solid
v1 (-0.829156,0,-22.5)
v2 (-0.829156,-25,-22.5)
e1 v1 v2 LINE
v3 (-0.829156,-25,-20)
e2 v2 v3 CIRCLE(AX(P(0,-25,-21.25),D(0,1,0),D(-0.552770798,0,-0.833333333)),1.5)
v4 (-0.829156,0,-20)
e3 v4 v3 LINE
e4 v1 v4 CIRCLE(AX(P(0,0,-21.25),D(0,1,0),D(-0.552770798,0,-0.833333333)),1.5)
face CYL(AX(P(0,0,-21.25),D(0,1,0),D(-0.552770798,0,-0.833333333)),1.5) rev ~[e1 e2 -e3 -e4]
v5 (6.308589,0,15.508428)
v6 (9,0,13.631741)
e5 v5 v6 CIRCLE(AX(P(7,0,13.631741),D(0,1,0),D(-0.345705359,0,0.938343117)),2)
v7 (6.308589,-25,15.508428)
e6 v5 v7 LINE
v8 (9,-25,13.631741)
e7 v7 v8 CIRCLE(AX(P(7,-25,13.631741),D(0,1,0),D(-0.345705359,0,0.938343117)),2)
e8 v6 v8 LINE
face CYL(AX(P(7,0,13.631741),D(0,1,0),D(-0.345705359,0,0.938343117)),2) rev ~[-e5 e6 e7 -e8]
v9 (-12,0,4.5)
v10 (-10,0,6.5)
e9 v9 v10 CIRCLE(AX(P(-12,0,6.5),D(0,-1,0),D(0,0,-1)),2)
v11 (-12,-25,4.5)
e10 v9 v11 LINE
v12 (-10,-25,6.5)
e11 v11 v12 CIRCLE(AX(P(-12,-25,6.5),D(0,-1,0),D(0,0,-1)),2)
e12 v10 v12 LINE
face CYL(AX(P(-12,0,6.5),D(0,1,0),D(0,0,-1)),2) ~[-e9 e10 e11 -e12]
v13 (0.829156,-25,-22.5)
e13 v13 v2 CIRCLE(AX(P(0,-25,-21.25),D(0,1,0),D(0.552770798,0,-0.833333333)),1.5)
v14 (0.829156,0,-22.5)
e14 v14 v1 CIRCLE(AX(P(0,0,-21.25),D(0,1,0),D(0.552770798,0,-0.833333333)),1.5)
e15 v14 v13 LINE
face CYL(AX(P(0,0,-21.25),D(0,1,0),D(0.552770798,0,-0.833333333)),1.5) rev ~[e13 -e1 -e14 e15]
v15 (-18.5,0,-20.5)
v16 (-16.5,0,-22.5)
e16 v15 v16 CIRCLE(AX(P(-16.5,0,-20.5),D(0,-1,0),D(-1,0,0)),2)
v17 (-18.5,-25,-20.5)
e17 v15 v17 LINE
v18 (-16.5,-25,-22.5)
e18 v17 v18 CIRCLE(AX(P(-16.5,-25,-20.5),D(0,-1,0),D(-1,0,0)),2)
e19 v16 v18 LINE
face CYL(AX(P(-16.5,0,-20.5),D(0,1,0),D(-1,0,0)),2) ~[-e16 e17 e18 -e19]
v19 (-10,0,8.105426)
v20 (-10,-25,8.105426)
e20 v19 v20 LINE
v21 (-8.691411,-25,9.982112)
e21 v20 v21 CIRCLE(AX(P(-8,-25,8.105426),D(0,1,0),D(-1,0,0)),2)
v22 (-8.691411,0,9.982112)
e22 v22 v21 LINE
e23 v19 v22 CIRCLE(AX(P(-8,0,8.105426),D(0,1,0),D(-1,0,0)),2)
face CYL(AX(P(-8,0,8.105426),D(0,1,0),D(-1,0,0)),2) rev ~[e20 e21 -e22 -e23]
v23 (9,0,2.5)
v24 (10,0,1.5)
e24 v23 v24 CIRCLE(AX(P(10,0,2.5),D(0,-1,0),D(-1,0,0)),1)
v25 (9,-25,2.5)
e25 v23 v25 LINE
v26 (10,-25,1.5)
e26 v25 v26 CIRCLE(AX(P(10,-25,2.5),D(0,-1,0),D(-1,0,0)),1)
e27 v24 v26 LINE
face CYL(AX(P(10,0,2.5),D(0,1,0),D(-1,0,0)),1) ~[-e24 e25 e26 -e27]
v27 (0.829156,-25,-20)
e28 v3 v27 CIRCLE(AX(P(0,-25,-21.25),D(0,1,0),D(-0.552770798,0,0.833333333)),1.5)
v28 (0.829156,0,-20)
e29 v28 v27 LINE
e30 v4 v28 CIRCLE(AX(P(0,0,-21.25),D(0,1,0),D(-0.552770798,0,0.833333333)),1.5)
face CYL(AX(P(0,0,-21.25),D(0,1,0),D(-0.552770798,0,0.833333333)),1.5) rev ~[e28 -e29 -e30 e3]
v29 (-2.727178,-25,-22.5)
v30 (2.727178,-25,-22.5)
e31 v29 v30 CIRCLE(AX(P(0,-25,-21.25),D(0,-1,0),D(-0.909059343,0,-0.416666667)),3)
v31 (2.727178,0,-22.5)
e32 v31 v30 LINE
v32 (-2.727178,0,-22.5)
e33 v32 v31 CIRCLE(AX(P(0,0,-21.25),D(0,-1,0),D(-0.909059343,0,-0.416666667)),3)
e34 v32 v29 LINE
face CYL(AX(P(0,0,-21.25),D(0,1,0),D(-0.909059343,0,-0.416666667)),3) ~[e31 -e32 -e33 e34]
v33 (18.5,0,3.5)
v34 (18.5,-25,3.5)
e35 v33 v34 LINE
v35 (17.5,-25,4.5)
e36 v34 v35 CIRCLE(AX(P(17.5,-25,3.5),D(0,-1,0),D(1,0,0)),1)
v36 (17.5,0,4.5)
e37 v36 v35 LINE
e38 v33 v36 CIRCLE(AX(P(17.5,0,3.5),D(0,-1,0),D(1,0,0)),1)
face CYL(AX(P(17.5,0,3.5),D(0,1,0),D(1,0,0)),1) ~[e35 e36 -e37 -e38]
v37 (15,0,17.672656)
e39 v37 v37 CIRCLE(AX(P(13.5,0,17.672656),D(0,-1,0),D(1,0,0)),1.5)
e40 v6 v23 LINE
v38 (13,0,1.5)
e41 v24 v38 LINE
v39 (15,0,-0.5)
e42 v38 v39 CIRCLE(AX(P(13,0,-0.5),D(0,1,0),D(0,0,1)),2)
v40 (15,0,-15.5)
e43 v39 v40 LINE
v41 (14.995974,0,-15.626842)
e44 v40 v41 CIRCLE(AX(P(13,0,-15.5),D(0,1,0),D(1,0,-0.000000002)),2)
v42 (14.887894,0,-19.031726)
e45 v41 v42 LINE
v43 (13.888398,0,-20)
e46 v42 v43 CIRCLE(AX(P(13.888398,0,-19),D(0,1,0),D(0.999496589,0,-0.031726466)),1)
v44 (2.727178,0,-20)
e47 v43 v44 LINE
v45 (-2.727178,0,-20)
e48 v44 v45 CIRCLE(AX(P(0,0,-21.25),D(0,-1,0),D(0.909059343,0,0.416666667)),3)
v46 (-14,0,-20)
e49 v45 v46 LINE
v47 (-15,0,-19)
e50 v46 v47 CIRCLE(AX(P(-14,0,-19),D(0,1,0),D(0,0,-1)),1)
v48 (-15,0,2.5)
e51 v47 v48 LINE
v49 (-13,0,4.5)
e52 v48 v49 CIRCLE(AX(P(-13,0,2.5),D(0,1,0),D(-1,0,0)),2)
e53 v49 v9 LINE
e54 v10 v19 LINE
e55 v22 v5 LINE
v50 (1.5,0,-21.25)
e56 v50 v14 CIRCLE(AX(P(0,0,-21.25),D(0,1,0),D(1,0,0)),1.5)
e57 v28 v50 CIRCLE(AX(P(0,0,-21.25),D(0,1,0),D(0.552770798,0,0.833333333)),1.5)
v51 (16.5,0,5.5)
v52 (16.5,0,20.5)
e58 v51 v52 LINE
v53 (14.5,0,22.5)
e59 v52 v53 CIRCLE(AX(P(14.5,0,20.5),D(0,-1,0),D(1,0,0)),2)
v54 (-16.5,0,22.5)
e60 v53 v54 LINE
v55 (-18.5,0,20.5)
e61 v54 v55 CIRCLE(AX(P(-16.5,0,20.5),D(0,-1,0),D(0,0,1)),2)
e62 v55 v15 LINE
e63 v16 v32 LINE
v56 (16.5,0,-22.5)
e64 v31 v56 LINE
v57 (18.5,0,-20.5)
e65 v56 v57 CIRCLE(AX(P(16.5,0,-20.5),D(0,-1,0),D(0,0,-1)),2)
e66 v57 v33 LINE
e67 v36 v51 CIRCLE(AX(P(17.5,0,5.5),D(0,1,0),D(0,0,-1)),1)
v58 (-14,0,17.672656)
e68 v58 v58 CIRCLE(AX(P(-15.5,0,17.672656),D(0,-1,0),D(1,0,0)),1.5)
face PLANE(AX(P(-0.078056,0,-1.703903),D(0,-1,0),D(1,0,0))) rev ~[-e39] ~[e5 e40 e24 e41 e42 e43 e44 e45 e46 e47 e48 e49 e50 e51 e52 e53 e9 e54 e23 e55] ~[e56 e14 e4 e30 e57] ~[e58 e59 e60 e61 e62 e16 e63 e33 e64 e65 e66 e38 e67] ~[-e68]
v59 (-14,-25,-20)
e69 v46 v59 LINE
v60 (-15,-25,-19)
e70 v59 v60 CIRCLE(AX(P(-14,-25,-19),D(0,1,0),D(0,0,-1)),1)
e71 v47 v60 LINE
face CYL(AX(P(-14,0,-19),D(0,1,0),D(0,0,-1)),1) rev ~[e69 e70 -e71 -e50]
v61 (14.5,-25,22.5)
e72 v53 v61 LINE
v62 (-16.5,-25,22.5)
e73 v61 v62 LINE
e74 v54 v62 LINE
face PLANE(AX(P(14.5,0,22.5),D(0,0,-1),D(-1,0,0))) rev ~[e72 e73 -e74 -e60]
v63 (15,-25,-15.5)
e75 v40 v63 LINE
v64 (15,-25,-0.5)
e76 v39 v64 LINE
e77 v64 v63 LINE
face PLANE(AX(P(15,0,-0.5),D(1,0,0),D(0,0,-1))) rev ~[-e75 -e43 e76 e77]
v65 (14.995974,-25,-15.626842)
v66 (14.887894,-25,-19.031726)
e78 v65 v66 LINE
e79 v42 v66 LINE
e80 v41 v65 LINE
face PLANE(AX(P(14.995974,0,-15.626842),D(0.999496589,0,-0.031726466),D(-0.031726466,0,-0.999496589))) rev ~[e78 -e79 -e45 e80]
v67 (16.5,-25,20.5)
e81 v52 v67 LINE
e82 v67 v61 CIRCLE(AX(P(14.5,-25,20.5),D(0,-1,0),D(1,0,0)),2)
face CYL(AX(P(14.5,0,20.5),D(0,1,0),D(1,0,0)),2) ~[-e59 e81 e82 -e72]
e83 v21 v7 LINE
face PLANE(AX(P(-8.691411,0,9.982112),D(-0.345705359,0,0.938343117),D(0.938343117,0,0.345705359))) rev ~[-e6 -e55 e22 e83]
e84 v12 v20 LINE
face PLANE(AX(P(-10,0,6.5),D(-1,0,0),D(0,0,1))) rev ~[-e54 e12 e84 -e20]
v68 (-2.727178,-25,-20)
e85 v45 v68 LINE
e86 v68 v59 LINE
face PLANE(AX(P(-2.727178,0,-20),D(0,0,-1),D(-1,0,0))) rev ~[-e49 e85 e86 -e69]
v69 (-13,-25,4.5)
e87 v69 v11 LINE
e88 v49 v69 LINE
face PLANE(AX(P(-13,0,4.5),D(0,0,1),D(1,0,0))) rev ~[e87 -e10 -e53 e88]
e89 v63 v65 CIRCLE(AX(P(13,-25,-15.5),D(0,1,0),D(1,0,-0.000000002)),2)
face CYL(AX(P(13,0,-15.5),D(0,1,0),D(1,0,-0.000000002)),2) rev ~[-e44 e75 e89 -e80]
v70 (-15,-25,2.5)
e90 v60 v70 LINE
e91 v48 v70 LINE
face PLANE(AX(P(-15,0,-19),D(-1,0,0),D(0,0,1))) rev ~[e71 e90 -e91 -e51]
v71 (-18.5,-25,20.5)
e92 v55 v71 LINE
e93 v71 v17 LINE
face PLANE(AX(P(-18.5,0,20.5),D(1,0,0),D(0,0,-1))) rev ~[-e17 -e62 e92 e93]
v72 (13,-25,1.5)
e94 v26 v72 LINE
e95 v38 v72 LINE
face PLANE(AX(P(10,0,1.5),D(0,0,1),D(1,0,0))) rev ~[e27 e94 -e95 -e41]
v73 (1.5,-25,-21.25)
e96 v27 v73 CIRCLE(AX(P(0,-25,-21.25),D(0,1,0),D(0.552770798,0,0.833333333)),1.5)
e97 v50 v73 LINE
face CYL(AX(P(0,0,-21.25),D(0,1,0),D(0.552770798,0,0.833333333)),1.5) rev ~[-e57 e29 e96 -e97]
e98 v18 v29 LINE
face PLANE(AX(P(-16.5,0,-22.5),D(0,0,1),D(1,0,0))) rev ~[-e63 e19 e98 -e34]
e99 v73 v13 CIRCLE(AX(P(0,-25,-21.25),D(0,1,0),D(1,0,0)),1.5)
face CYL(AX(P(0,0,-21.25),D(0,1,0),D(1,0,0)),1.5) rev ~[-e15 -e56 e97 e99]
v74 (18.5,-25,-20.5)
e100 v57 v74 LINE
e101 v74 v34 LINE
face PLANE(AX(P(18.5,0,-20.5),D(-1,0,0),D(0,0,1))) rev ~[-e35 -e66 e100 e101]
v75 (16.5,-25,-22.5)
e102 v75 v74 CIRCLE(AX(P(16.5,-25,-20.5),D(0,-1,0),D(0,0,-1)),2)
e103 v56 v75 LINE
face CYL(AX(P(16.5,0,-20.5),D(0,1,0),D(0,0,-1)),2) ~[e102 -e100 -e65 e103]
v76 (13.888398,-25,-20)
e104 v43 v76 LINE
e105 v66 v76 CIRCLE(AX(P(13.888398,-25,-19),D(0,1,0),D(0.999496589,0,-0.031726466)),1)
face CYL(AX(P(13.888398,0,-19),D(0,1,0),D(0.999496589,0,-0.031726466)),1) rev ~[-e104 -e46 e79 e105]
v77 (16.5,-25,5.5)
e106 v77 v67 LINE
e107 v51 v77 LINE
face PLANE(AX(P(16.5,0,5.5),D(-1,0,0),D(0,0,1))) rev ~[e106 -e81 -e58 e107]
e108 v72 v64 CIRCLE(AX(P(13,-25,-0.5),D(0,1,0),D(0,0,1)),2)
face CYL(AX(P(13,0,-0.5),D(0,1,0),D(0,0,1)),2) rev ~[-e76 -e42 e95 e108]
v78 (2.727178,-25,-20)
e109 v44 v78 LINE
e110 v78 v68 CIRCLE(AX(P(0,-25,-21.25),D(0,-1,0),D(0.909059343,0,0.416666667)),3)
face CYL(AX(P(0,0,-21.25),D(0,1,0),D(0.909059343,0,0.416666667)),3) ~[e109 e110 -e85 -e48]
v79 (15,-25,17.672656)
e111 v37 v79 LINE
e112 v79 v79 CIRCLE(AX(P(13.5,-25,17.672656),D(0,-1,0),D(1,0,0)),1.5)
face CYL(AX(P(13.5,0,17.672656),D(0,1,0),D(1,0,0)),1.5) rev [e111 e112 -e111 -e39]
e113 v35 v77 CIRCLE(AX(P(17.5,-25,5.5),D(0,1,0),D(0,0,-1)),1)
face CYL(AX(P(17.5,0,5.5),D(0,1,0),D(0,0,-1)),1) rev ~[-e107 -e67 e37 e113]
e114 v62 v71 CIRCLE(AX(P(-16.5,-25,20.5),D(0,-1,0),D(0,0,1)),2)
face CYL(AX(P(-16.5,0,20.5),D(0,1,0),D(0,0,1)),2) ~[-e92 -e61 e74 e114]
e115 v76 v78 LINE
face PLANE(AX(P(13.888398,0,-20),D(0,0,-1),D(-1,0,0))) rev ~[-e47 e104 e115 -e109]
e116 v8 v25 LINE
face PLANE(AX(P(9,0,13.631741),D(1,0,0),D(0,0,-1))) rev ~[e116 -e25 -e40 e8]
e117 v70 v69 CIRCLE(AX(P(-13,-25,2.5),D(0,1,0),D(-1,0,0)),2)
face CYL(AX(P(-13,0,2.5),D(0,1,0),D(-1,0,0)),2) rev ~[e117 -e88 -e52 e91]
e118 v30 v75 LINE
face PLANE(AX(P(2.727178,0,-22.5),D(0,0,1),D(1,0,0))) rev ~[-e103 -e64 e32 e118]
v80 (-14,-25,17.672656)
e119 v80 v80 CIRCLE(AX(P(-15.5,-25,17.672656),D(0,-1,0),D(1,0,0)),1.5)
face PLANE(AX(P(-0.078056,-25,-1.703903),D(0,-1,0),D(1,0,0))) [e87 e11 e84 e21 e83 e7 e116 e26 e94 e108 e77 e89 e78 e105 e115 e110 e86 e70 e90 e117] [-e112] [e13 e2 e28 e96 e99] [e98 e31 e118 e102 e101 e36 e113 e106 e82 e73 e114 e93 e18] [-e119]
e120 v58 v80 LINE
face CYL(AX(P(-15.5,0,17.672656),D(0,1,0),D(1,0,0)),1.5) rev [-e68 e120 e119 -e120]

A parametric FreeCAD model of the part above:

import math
import FreeCAD as App
import Part
import Sketcher

V = App.Vector

doc = App.newDocument("Part")
body = doc.addObject("PartDesign::Body", "Body")

# Sketch on XZ plane
sketch1 = doc.addObject("Sketcher::SketchObject", "Sketch")
body.addObject(sketch1)
sketch1.AttachmentSupport = (doc.XZ_Plane, [""])
sketch1.MapMode = "FlatFace"
sketch1.addGeometry(Part.ArcOfCircle(Part.Circle(V(17.5, 5.5, 0), V(0, 0, 1), 1), math.radians(180), math.radians(270)), False)
sketch1.addGeometry(Part.LineSegment(V(16.5, 5.5, 0), V(16.5, 20.5, 0)), False)
sketch1.addGeometry(Part.ArcOfCircle(Part.Circle(V(14.5, 20.5, 0), V(0, 0, 1), 2), math.radians(0), math.radians(90)), False)
sketch1.addGeometry(Part.LineSegment(V(14.5, 22.5, 0), V(-16.5, 22.5, 0)), False)
sketch1.addGeometry(Part.ArcOfCircle(Part.Circle(V(-16.5, 20.5, 0), V(0, 0, 1), 2), math.radians(90), math.radians(180)), False)
sketch1.addGeometry(Part.LineSegment(V(-18.5, 20.5, 0), V(-18.5, -20.5, 0)), False)
sketch1.addGeometry(Part.ArcOfCircle(Part.Circle(V(-16.5, -20.5, 0), V(0, 0, 1), 2), math.radians(180), math.radians(270)), False)
sketch1.addGeometry(Part.LineSegment(V(-16.5, -22.5, 0), V(-2.727178, -22.5, 0)), False)
sketch1.addGeometry(Part.ArcOfCircle(Part.Circle(V(0, -21.25, 0), V(0, 0, 1), 3), math.radians(-155.375682), math.radians(-24.624318)), False)
sketch1.addGeometry(Part.LineSegment(V(2.727178, -22.5, 0), V(16.5, -22.5, 0)), False)
sketch1.addGeometry(Part.ArcOfCircle(Part.Circle(V(16.5, -20.5, 0), V(0, 0, 1), 2), math.radians(-90), math.radians(0)), False)
sketch1.addGeometry(Part.LineSegment(V(18.5, -20.5, 0), V(18.5, 3.5, 0)), False)
sketch1.addGeometry(Part.ArcOfCircle(Part.Circle(V(17.5, 3.5, 0), V(0, 0, 1), 1), math.radians(0), math.radians(90)), False)
sketch1.addGeometry(Part.ArcOfCircle(Part.Circle(V(0, -21.25, 0), V(0, 0, 1), 1.5), math.radians(0), math.radians(56.44269)), False)
sketch1.addGeometry(Part.ArcOfCircle(Part.Circle(V(0, -21.25, 0), V(0, 0, 1), 1.5), math.radians(-56.44269), math.radians(0)), False)
sketch1.addGeometry(Part.ArcOfCircle(Part.Circle(V(0, -21.25, 0), V(0, 0, 1), 1.5), math.radians(-123.55731), math.radians(-56.44269)), False)
sketch1.addGeometry(Part.ArcOfCircle(Part.Circle(V(0, -21.25, 0), V(0, 0, 1), 1.5), math.radians(123.55731), math.radians(236.44269)), False)
sketch1.addGeometry(Part.ArcOfCircle(Part.Circle(V(0, -21.25, 0), V(0, 0, 1), 1.5), math.radians(56.44269), math.radians(123.55731)), False)
sketch1.addGeometry(Part.LineSegment(V(13.888398, -20, 0), V(2.727178, -20, 0)), False)
sketch1.addGeometry(Part.ArcOfCircle(Part.Circle(V(0, -21.25, 0), V(0, 0, 1), 3), math.radians(24.624318), math.radians(155.375682)), False)
sketch1.addGeometry(Part.LineSegment(V(-2.727178, -20, 0), V(-14, -20, 0)), False)
sketch1.addGeometry(Part.ArcOfCircle(Part.Circle(V(-14, -19, 0), V(0, 0, 1), 1), math.radians(180), math.radians(270)), False)
sketch1.addGeometry(Part.LineSegment(V(-15, -19, 0), V(-15, 2.5, 0)), False)
sketch1.addGeometry(Part.ArcOfCircle(Part.Circle(V(-13, 2.5, 0), V(0, 0, 1), 2), math.radians(90), math.radians(180)), False)
sketch1.addGeometry(Part.LineSegment(V(-13, 4.5, 0), V(-12, 4.5, 0)), False)
sketch1.addGeometry(Part.ArcOfCircle(Part.Circle(V(-12, 6.5, 0), V(0, 0, 1), 2), math.radians(-90), math.radians(0)), False)
sketch1.addGeometry(Part.LineSegment(V(-10, 6.5, 0), V(-10, 8.105426, 0)), False)
sketch1.addGeometry(Part.ArcOfCircle(Part.Circle(V(-8, 8.105426, 0), V(0, 0, 1), 2), math.radians(110.224859), math.radians(180)), False)
sketch1.addGeometry(Part.LineSegment(V(-8.691411, 9.982112, 0), V(6.308589, 15.508428, 0)), False)
sketch1.addGeometry(Part.ArcOfCircle(Part.Circle(V(7, 13.631741, 0), V(0, 0, 1), 2), math.radians(0), math.radians(110.224859)), False)
sketch1.addGeometry(Part.LineSegment(V(9, 13.631741, 0), V(9, 2.5, 0)), False)
sketch1.addGeometry(Part.ArcOfCircle(Part.Circle(V(10, 2.5, 0), V(0, 0, 1), 1), math.radians(180), math.radians(270)), False)
sketch1.addGeometry(Part.LineSegment(V(10, 1.5, 0), V(13, 1.5, 0)), False)
sketch1.addGeometry(Part.ArcOfCircle(Part.Circle(V(13, -0.5, 0), V(0, 0, 1), 2), math.radians(0), math.radians(90)), False)
sketch1.addGeometry(Part.LineSegment(V(15, -0.5, 0), V(15, -15.5, 0)), False)
sketch1.addGeometry(Part.ArcOfCircle(Part.Circle(V(13, -15.5, 0), V(0, 0, 1), 2), math.radians(-3.636195), math.radians(0)), False)
sketch1.addGeometry(Part.LineSegment(V(14.995974, -15.626842, 0), V(14.887894, -19.031726, 0)), False)
sketch1.addGeometry(Part.ArcOfCircle(Part.Circle(V(13.888398, -19, 0), V(0, 0, 1), 1), math.radians(-90), math.radians(-1.818098)), False)
sketch1.addGeometry(Part.Circle(V(-15.5, 17.672656, 0), V(0, 0, 1), 1.5), False)
sketch1.addGeometry(Part.Circle(V(13.5, 17.672656, 0), V(0, 0, 1), 1.5), False)
sketch1.addConstraint(Sketcher.Constraint("Tangent", 0, 1, 1, 1))
sketch1.addConstraint(Sketcher.Constraint("Tangent", 1, 2, 2, 1))
sketch1.addConstraint(Sketcher.Constraint("Tangent", 2, 2, 3, 1))
sketch1.addConstraint(Sketcher.Constraint("Tangent", 3, 2, 4, 1))
sketch1.addConstraint(Sketcher.Constraint("Tangent", 4, 2, 5, 1))
sketch1.addConstraint(Sketcher.Constraint("Tangent", 5, 2, 6, 1))
sketch1.addConstraint(Sketcher.Constraint("Tangent", 6, 2, 7, 1))
sketch1.addConstraint(Sketcher.Constraint("Coincident", 7, 2, 8, 1))
sketch1.addConstraint(Sketcher.Constraint("Coincident", 8, 2, 9, 1))
sketch1.addConstraint(Sketcher.Constraint("Tangent", 9, 2, 10, 1))
sketch1.addConstraint(Sketcher.Constraint("Tangent", 10, 2, 11, 1))
sketch1.addConstraint(Sketcher.Constraint("Tangent", 11, 2, 12, 1))
sketch1.addConstraint(Sketcher.Constraint("Tangent", 12, 2, 0, 2))
sketch1.addConstraint(Sketcher.Constraint("Tangent", 13, 1, 14, 2))
sketch1.addConstraint(Sketcher.Constraint("Tangent", 14, 1, 15, 2))
sketch1.addConstraint(Sketcher.Constraint("Tangent", 15, 1, 16, 2))
sketch1.addConstraint(Sketcher.Constraint("Tangent", 16, 1, 17, 2))
sketch1.addConstraint(Sketcher.Constraint("Tangent", 17, 1, 13, 2))
sketch1.addConstraint(Sketcher.Constraint("Coincident", 18, 2, 19, 1))
sketch1.addConstraint(Sketcher.Constraint("Coincident", 19, 2, 20, 1))
sketch1.addConstraint(Sketcher.Constraint("Tangent", 20, 2, 21, 2))
sketch1.addConstraint(Sketcher.Constraint("Tangent", 21, 1, 22, 1))
sketch1.addConstraint(Sketcher.Constraint("Tangent", 22, 2, 23, 2))
sketch1.addConstraint(Sketcher.Constraint("Tangent", 23, 1, 24, 1))
sketch1.addConstraint(Sketcher.Constraint("Tangent", 24, 2, 25, 1))
sketch1.addConstraint(Sketcher.Constraint("Tangent", 25, 2, 26, 1))
sketch1.addConstraint(Sketcher.Constraint("Tangent", 26, 2, 27, 2))
sketch1.addConstraint(Sketcher.Constraint("Tangent", 27, 1, 28, 1))
sketch1.addConstraint(Sketcher.Constraint("Tangent", 28, 2, 29, 2))
sketch1.addConstraint(Sketcher.Constraint("Tangent", 29, 1, 30, 1))
sketch1.addConstraint(Sketcher.Constraint("Tangent", 30, 2, 31, 1))
sketch1.addConstraint(Sketcher.Constraint("Tangent", 31, 2, 32, 1))
sketch1.addConstraint(Sketcher.Constraint("Tangent", 32, 2, 33, 2))
sketch1.addConstraint(Sketcher.Constraint("Tangent", 33, 1, 34, 1))
sketch1.addConstraint(Sketcher.Constraint("Tangent", 34, 2, 35, 2))
sketch1.addConstraint(Sketcher.Constraint("Coincident", 35, 1, 36, 1))
sketch1.addConstraint(Sketcher.Constraint("Tangent", 36, 2, 37, 2))
sketch1.addConstraint(Sketcher.Constraint("Tangent", 37, 1, 18, 1))
sketch1.addConstraint(Sketcher.Constraint("Vertical", 1))
sketch1.addConstraint(Sketcher.Constraint("Horizontal", 3))
sketch1.addConstraint(Sketcher.Constraint("Vertical", 5))
sketch1.addConstraint(Sketcher.Constraint("Horizontal", 7))
sketch1.addConstraint(Sketcher.Constraint("Horizontal", 9))
sketch1.addConstraint(Sketcher.Constraint("Vertical", 11))
sketch1.addConstraint(Sketcher.Constraint("Horizontal", 18))
sketch1.addConstraint(Sketcher.Constraint("Horizontal", 20))
sketch1.addConstraint(Sketcher.Constraint("Vertical", 22))
sketch1.addConstraint(Sketcher.Constraint("Horizontal", 24))
sketch1.addConstraint(Sketcher.Constraint("Vertical", 26))
sketch1.addConstraint(Sketcher.Constraint("Vertical", 30))
sketch1.addConstraint(Sketcher.Constraint("Horizontal", 32))
sketch1.addConstraint(Sketcher.Constraint("Vertical", 34))
sketch1.addConstraint(Sketcher.Constraint("Coincident", 13, 3, 8, 3))
sketch1.addConstraint(Sketcher.Constraint("Coincident", 15, 3, 8, 3))
sketch1.addConstraint(Sketcher.Constraint("Coincident", 19, 3, 8, 3))
sketch1.addConstraint(Sketcher.Constraint("Equal", 2, 4))
sketch1.addConstraint(Sketcher.Constraint("Equal", 4, 6))
sketch1.addConstraint(Sketcher.Constraint("Equal", 6, 10))
sketch1.addConstraint(Sketcher.Constraint("Equal", 0, 12))
sketch1.addConstraint(Sketcher.Constraint("Equal", 8, 19))
sketch1.addConstraint(Sketcher.Constraint("Equal", 12, 21))
sketch1.addConstraint(Sketcher.Constraint("Equal", 10, 23))
sketch1.addConstraint(Sketcher.Constraint("Equal", 23, 25))
sketch1.addConstraint(Sketcher.Constraint("Equal", 25, 27))
sketch1.addConstraint(Sketcher.Constraint("Equal", 27, 29))
sketch1.addConstraint(Sketcher.Constraint("Equal", 21, 31))
sketch1.addConstraint(Sketcher.Constraint("Equal", 29, 33))
sketch1.addConstraint(Sketcher.Constraint("Equal", 33, 35))
sketch1.addConstraint(Sketcher.Constraint("Equal", 31, 37))
sketch1.addConstraint(Sketcher.Constraint("Equal", 17, 38))
sketch1.addConstraint(Sketcher.Constraint("Equal", 38, 39))
sketch1.addConstraint(Sketcher.Constraint("Symmetric", 4, 3, 10, 3, -1, 1))
sketch1.addConstraint(Sketcher.Constraint("Symmetric", 7, 2, 8, 2, -2))
sketch1.addConstraint(Sketcher.Constraint("Horizontal", 23, 3, 31, 3))
sketch1.addConstraint(Sketcher.Constraint("Horizontal", 21, 3, 37, 3))
sketch1.addConstraint(Sketcher.Constraint("Horizontal", 38, 3, 39, 3))
sketch1.addConstraint(Sketcher.Constraint("Horizontal", 19, 3, 13, 1))
sketch1.addConstraint(Sketcher.Constraint("Horizontal", 9, 2, 14, 1))
sketch1.addConstraint(Sketcher.Constraint("Horizontal", 14, 1, 15, 1))
sketch1.addConstraint(Sketcher.Constraint("Horizontal", 16, 1, 17, 1))
sketch1.addConstraint(Sketcher.Constraint("Horizontal", 17, 1, 18, 2))
sketch1.addConstraint(Sketcher.Constraint("Horizontal", 12, 2, 23, 1))
sketch1.addConstraint(Sketcher.Constraint("Vertical", 0, 3, 12, 3))
sketch1.addConstraint(Sketcher.Constraint("Vertical", 10, 3, 0, 1))
sketch1.addConstraint(Sketcher.Constraint("Vertical", 15, 1, 16, 1))
sketch1.addConstraint(Sketcher.Constraint("Equal", 1, 34))
sketch1.addConstraint(Sketcher.Constraint("Diameter", 38, 3.0))
sketch1.addConstraint(Sketcher.Constraint("Radius", 0, 1.0))
sketch1.addConstraint(Sketcher.Constraint("Radius", 8, 3.0))
sketch1.addConstraint(Sketcher.Constraint("DistanceX", 3, 2, 3, 1, 31.0))
sketch1.addConstraint(Sketcher.Constraint("DistanceX", 24, 1, 24, 2, 1.0))
sketch1.addConstraint(Sketcher.Constraint("DistanceX", 32, 1, 32, 2, 3.0))
sketch1.addConstraint(Sketcher.Constraint("DistanceY", 1, 1, 1, 2, 15.0))
sketch1.addConstraint(Sketcher.Constraint("DistanceY", 5, 2, 5, 1, 41.0))
sketch1.addConstraint(Sketcher.Constraint("DistanceY", 22, 1, 22, 2, 21.5))
sketch1.addConstraint(Sketcher.Constraint("DistanceX", 21, 3, -1, 1, 14.0))
sketch1.addConstraint(Sketcher.Constraint("DistanceX", -1, 1, 29, 3, 7.0))
sketch1.addConstraint(Sketcher.Constraint("DistanceX", 38, 3, -1, 1, 15.5))
sketch1.addConstraint(Sketcher.Constraint("DistanceX", -1, 1, 39, 3, 13.5))
sketch1.addConstraint(Sketcher.Constraint("Distance", 36, 3.406599))
sketch1.addConstraint(Sketcher.Constraint("DistanceX", 18, 2, 18, 1, 11.16122))
sketch1.addConstraint(Sketcher.Constraint("DistanceY", 30, 2, 30, 1, 11.131741))
sketch1.addConstraint(Sketcher.Constraint("DistanceY", 26, 1, 26, 2, 1.605426))
sketch1.addConstraint(Sketcher.Constraint("DistanceY", -1, 1, 38, 3, 17.672656))
pad1 = doc.addObject("PartDesign::Pad", "Pad")
body.addObject(pad1)
pad1.Profile = sketch1
pad1.Length = 25

doc.recompute()
